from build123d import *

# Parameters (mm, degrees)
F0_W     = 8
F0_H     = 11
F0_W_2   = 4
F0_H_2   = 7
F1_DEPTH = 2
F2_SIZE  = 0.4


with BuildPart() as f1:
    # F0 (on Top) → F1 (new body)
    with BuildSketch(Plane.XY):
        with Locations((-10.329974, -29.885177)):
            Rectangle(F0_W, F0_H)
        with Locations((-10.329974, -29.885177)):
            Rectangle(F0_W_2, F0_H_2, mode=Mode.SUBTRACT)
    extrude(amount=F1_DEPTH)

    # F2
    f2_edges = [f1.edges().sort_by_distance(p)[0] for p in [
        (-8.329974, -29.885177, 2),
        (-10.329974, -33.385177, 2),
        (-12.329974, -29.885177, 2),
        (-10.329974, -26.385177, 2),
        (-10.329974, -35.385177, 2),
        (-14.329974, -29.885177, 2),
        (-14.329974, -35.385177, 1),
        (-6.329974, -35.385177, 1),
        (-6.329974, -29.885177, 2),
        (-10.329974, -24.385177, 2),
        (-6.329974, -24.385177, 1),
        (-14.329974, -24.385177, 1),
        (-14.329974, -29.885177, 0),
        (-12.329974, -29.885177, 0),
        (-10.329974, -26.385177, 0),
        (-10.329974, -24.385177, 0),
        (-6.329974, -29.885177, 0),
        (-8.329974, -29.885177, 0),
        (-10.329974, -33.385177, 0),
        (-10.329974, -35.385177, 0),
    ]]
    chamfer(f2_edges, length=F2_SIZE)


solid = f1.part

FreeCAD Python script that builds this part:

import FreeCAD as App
import Part
import Sketcher
from FreeCAD import Vector


def edges_at(feature, points):
    """Names of the edges that pass closest to the given points."""
    edges = feature.Shape.Edges
    near = lambda p: min(range(len(edges)), key=lambda i: edges[i].distToShape(Part.Vertex(*p))[0])
    return sorted({f"Edge{near(p) + 1}" for p in points})

doc = App.newDocument("Part")
params = doc.addObject("Spreadsheet::Sheet", "Params")
for row, (alias, value) in enumerate([
    ("sketch1_width", "8 mm"),
    ("sketch1_width2", "4 mm"),
    ("sketch1_height", "11 mm"),
    ("sketch1_height2", "7 mm"),
    ("pad1_length", "2 mm"),
    ("chamfer_size", "0.4 mm"),
], start=1):
    params.set(f"A{row}", alias)
    params.set(f"B{row}", "=" + value)
    params.setAlias(f"B{row}", alias)

body = doc.addObject("PartDesign::Body", "Body")

# Sketch on XY plane
sketch1 = body.newObject("Sketcher::SketchObject", "Sketch")
sketch1.AttachmentSupport = (doc.getObject("XY_Plane"), [""])
sketch1.MapMode = "FlatFace"
sketch1.addGeometry([
    Part.LineSegment(Vector(-14.3, -24.4, 0), Vector(-14.3, -35.4, 0)),  # 0
    Part.LineSegment(Vector(-14.3, -35.4, 0), Vector(-6.3, -35.4, 0)),  # 1
    Part.LineSegment(Vector(-6.3, -35.4, 0), Vector(-6.3, -24.4, 0)),  # 2
    Part.LineSegment(Vector(-6.3, -24.4, 0), Vector(-14.3, -24.4, 0)),  # 3
    Part.LineSegment(Vector(-8.3, -33.4, 0), Vector(-12.3, -33.4, 0)),  # 4
    Part.LineSegment(Vector(-12.3, -33.4, 0), Vector(-12.3, -26.4, 0)),  # 5
    Part.LineSegment(Vector(-12.3, -26.4, 0), Vector(-8.3, -26.4, 0)),  # 6
    Part.LineSegment(Vector(-8.3, -26.4, 0), Vector(-8.3, -33.4, 0)),  # 7
], False)
sketch1.addConstraint([
    Sketcher.Constraint("Coincident", 0, 2, 1, 1),
    Sketcher.Constraint("Coincident", 1, 2, 2, 1),
    Sketcher.Constraint("Coincident", 2, 2, 3, 1),
    Sketcher.Constraint("Coincident", 3, 2, 0, 1),
    Sketcher.Constraint("Coincident", 4, 2, 5, 1),
    Sketcher.Constraint("Coincident", 5, 2, 6, 1),
    Sketcher.Constraint("Coincident", 6, 2, 7, 1),
    Sketcher.Constraint("Coincident", 7, 2, 4, 1),
    Sketcher.Constraint("Vertical", 0),
    Sketcher.Constraint("Horizontal", 1),
    Sketcher.Constraint("Vertical", 2),
    Sketcher.Constraint("Horizontal", 3),
    Sketcher.Constraint("Horizontal", 4),
    Sketcher.Constraint("Vertical", 5),
    Sketcher.Constraint("Horizontal", 6),
    Sketcher.Constraint("Vertical", 7),
    Sketcher.Constraint("DistanceX", 1, 1, 1, 2, 8.0),
    Sketcher.Constraint("DistanceX", 4, 2, 4, 1, 4.0),
    Sketcher.Constraint("DistanceY", 0, 2, 0, 1, 11.0),
    Sketcher.Constraint("DistanceY", 5, 1, 5, 2, 7.0),
    Sketcher.Constraint("DistanceX", 0, 2, 4, 2, 2.0),
    Sketcher.Constraint("DistanceY", 0, 2, 4, 2, 2.0),
    Sketcher.Constraint("DistanceX", 0, 2, -1, 1, 14.329974),
    Sketcher.Constraint("DistanceY", 0, 2, -1, 1, 35.385177),
])
sketch1.setExpression("Constraints[16]", "Params.sketch1_width")
sketch1.setExpression("Constraints[17]", "Params.sketch1_width2")
sketch1.setExpression("Constraints[18]", "Params.sketch1_height")
sketch1.setExpression("Constraints[19]", "Params.sketch1_height2")
pad1 = body.newObject("PartDesign::Pad", "Pad")
pad1.Profile = sketch1
pad1.setExpression("Length", "Params.pad1_length")
doc.recompute()

chamfer = body.newObject("PartDesign::Chamfer", "Chamfer")
chamfer.Base = (pad1, edges_at(pad1, [
    (-8.33, -29.885, 2),
    (-10.33, -33.385, 2),
    (-12.33, -29.885, 2),
    (-10.33, -26.385, 2),
    (-10.33, -35.385, 2),
    (-14.33, -29.885, 2),
    (-14.33, -35.385, 1),
    (-6.33, -35.385, 1),
    (-6.33, -29.885, 2),
    (-10.33, -24.385, 2),
    (-6.33, -24.385, 1),
    (-14.33, -24.385, 1),
    (-14.33, -29.885, 0),
    (-12.33, -29.885, 0),
    (-10.33, -26.385, 0),
    (-10.33, -24.385, 0),
    (-6.33, -29.885, 0),
    (-8.33, -29.885, 0),
    (-10.33, -33.385, 0),
    (-10.33, -35.385, 0),
]))
chamfer.setExpression("Size", "Params.chamfer_size")

doc.recompute()
